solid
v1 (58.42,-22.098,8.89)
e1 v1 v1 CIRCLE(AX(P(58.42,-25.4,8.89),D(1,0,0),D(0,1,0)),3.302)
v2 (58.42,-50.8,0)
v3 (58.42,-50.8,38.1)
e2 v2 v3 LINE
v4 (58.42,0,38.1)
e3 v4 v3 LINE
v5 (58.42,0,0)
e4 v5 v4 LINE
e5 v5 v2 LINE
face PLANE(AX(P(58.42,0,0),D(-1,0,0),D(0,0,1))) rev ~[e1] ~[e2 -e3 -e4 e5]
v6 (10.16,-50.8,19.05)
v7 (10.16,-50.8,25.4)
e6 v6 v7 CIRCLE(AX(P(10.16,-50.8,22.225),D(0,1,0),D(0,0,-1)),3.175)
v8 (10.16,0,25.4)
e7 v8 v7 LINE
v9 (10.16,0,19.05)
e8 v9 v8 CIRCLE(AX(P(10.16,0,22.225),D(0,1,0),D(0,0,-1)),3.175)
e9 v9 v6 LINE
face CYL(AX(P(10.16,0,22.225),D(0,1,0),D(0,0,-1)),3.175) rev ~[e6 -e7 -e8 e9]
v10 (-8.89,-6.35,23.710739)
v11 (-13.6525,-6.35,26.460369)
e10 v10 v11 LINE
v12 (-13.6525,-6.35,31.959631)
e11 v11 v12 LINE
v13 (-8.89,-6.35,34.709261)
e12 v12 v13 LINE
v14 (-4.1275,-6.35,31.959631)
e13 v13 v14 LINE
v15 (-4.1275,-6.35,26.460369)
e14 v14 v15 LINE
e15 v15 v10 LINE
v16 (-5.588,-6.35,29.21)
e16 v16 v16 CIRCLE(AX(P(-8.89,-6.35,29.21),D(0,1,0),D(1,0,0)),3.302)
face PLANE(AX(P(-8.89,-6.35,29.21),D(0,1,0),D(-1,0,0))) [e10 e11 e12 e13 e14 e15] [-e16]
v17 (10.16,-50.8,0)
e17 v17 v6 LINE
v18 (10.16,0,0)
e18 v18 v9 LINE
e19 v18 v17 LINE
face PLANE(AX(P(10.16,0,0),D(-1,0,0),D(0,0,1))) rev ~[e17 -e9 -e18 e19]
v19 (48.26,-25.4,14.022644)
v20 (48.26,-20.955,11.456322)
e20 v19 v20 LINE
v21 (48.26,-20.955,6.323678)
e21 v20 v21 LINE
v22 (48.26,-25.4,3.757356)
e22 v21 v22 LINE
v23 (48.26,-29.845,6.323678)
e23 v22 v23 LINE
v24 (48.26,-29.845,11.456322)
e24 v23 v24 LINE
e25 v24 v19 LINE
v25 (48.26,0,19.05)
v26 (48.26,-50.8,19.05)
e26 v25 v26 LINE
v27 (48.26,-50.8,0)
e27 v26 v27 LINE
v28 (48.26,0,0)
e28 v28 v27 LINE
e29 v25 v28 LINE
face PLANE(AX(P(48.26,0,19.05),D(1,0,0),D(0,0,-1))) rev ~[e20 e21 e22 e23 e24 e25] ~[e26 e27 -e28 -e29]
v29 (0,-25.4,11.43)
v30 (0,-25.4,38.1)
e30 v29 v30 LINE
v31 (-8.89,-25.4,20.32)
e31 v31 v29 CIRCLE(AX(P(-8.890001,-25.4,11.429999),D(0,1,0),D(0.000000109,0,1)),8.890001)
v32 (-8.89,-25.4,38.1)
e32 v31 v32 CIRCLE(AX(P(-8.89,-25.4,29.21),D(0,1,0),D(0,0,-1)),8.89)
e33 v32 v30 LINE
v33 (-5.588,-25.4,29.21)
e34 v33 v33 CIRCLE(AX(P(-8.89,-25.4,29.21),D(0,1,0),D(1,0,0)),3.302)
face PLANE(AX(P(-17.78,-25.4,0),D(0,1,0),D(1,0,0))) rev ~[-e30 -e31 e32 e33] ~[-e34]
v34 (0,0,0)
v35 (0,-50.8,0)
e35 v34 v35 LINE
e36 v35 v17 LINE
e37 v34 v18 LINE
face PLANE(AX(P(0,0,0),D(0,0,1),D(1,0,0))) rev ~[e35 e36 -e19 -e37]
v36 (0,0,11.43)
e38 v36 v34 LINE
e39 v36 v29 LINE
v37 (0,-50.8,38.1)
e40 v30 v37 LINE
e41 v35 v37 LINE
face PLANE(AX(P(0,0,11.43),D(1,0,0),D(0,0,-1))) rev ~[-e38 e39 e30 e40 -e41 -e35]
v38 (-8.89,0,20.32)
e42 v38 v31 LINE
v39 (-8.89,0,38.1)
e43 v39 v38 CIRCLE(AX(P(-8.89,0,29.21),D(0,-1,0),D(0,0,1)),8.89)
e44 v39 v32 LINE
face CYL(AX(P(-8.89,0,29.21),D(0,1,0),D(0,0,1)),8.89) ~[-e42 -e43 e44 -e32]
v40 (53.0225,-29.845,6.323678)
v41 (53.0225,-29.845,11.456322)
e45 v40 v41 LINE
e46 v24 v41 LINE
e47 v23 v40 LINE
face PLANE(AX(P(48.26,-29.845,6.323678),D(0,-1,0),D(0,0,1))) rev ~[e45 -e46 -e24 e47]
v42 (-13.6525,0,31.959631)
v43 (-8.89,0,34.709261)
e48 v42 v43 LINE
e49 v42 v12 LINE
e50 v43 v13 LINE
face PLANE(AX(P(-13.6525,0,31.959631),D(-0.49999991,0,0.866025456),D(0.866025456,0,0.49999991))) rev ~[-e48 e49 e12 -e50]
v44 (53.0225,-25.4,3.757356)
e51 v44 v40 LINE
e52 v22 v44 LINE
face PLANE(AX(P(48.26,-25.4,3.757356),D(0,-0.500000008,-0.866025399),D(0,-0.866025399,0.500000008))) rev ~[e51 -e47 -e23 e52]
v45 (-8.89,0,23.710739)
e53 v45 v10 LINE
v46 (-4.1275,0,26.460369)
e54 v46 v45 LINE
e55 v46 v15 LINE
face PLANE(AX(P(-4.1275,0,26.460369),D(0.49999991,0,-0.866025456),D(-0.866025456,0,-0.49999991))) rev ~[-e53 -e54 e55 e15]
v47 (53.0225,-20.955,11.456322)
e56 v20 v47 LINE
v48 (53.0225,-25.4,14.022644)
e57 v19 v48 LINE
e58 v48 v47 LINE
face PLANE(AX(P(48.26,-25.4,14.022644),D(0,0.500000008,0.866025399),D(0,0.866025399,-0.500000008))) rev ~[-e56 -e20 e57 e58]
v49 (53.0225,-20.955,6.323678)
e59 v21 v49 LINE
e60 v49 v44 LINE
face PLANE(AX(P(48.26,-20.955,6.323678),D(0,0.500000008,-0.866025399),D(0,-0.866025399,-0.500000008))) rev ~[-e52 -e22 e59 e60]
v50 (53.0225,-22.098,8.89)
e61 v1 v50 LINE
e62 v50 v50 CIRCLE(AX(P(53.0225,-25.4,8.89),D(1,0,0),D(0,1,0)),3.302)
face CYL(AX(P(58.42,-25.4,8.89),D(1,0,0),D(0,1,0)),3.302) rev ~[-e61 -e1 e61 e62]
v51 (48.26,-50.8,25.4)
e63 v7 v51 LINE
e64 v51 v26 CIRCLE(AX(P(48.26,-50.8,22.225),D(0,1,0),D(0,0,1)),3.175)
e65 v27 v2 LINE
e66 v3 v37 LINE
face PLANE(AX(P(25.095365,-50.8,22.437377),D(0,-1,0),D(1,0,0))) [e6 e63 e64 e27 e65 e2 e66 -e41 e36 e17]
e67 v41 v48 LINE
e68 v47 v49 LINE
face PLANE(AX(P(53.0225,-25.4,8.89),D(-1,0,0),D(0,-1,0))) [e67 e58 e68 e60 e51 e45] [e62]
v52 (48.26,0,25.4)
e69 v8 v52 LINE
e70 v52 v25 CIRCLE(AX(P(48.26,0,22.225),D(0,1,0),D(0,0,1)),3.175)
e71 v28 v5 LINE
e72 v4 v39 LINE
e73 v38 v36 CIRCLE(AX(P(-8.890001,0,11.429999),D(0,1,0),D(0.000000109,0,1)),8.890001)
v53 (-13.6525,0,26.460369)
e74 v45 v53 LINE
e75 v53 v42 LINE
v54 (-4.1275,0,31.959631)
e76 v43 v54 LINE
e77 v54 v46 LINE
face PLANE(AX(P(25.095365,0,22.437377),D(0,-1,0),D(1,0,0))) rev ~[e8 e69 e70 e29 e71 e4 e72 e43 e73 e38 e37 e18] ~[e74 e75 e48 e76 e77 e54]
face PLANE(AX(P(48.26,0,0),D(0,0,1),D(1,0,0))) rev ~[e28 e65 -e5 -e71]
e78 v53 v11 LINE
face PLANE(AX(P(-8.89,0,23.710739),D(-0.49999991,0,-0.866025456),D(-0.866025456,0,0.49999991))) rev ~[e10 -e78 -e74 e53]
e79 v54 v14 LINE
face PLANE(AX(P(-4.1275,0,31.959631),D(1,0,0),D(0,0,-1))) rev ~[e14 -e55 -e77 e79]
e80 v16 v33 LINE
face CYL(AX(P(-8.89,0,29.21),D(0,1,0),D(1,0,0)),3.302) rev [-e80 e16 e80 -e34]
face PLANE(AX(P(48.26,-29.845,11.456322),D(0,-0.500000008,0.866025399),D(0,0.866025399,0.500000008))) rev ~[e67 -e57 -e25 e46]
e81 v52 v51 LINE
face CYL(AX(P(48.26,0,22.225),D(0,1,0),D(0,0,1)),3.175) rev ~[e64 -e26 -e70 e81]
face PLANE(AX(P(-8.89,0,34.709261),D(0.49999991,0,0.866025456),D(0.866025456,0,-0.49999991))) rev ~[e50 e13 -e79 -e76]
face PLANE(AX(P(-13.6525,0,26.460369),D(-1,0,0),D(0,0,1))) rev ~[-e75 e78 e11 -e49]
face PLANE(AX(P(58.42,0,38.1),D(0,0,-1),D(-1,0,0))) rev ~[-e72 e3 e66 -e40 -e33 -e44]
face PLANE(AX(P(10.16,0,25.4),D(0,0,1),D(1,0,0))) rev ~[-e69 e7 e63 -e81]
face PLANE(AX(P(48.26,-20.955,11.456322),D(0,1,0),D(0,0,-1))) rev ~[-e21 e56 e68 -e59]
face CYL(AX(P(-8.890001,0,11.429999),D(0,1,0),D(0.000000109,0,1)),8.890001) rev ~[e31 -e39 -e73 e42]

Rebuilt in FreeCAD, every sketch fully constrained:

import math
import FreeCAD as App
import Part
import Sketcher
Q = App.Units.Quantity

doc = App.newDocument("Part")
body = doc.addObject("PartDesign::Body", "Body")

# Sketch on XZ plane
sketch1 = body.newObject("Sketcher::SketchObject", "Sketch")
sketch1.AttachmentSupport = (doc.getObject("XZ_Plane"), [""])
sketch1.MapMode = "FlatFace"
sketch1.addGeometry(Part.LineSegment(App.Vector(0, 11.4, 0), App.Vector(0, 0, 0)), False)
sketch1.addGeometry(Part.LineSegment(App.Vector(0, 0, 0), App.Vector(10.2, 0, 0)), False)
sketch1.addGeometry(Part.LineSegment(App.Vector(10.2, 0, 0), App.Vector(10.2, 19.1, 0)), False)
sketch1.addGeometry(Part.ArcOfCircle(Part.Circle(App.Vector(10.2, 22.2, 0), App.Vector(0, 0, 1), 3.2), math.radians(90), math.radians(270)), False)
sketch1.addGeometry(Part.LineSegment(App.Vector(10.2, 25.4, 0), App.Vector(48.3, 25.4, 0)), False)
sketch1.addGeometry(Part.ArcOfCircle(Part.Circle(App.Vector(48.3, 22.2, 0), App.Vector(0, 0, 1), 3.2), math.radians(-90), math.radians(90)), False)
sketch1.addGeometry(Part.LineSegment(App.Vector(48.3, 19.1, 0), App.Vector(48.3, 0, 0)), False)
sketch1.addGeometry(Part.LineSegment(App.Vector(48.3, 0, 0), App.Vector(58.4, 0, 0)), False)
sketch1.addGeometry(Part.LineSegment(App.Vector(58.4, 0, 0), App.Vector(58.4, 38.1, 0)), False)
sketch1.addGeometry(Part.LineSegment(App.Vector(58.4, 38.1, 0), App.Vector(-8.9, 38.1, 0)), False)
sketch1.addGeometry(Part.ArcOfCircle(Part.Circle(App.Vector(-8.9, 29.2, 0), App.Vector(0, 0, 1), 8.9), math.radians(90), math.radians(270)), False)
sketch1.addGeometry(Part.ArcOfCircle(Part.Circle(App.Vector(-8.9, 11.4, 0), App.Vector(0, 0, 1), 8.9), math.radians(0), math.radians(90)), False)
sketch1.addGeometry(Part.Circle(App.Vector(-8.9, 29.2, 0), App.Vector(0, 0, 1), 3.3), False)
sketch1.addConstraint(Sketcher.Constraint("Coincident", 0, 2, 1, 1))
sketch1.addConstraint(Sketcher.Constraint("Coincident", 1, 2, 2, 1))
sketch1.addConstraint(Sketcher.Constraint("Coincident", 2, 2, 3, 2))
sketch1.addConstraint(Sketcher.Constraint("Tangent", 3, 1, 4, 1))
sketch1.addConstraint(Sketcher.Constraint("Tangent", 4, 2, 5, 2))
sketch1.addConstraint(Sketcher.Constraint("Coincident", 5, 1, 6, 1))
sketch1.addConstraint(Sketcher.Constraint("Coincident", 6, 2, 7, 1))
sketch1.addConstraint(Sketcher.Constraint("Coincident", 7, 2, 8, 1))
sketch1.addConstraint(Sketcher.Constraint("Coincident", 8, 2, 9, 1))
sketch1.addConstraint(Sketcher.Constraint("Tangent", 9, 2, 10, 1))
sketch1.addConstraint(Sketcher.Constraint("Tangent", 10, 2, 11, 2))
sketch1.addConstraint(Sketcher.Constraint("Tangent", 11, 1, 0, 1))
sketch1.addConstraint(Sketcher.Constraint("Vertical", 0))
sketch1.addConstraint(Sketcher.Constraint("Horizontal", 1))
sketch1.addConstraint(Sketcher.Constraint("Vertical", 2))
sketch1.addConstraint(Sketcher.Constraint("Horizontal", 4))
sketch1.addConstraint(Sketcher.Constraint("Vertical", 6))
sketch1.addConstraint(Sketcher.Constraint("Horizontal", 7))
sketch1.addConstraint(Sketcher.Constraint("Vertical", 8))
sketch1.addConstraint(Sketcher.Constraint("Horizontal", 9))
sketch1.addConstraint(Sketcher.Constraint("Coincident", 0, 2, -1, 1))
sketch1.addConstraint(Sketcher.Constraint("Coincident", 12, 3, 10, 3))
sketch1.addConstraint(Sketcher.Constraint("Equal", 3, 5))
sketch1.addConstraint(Sketcher.Constraint("Equal", 10, 11))
sketch1.addConstraint(Sketcher.Constraint("PointOnObject", 6, 2, -1))
sketch1.addConstraint(Sketcher.Constraint("Vertical", 10, 3, 11, 3))
sketch1.addConstraint(Sketcher.Constraint("Vertical", 3, 3, 1, 2))
sketch1.addConstraint(Sketcher.Constraint("Vertical", 4, 2, 5, 1))
sketch1.addConstraint(Sketcher.Constraint("Equal", 1, 7))
sketch1.addConstraint(Sketcher.Constraint("Equal", 4, 8))
sketch1.addConstraint(Sketcher.Constraint("Diameter", 12, Q("0.26 in")))
sketch1.addConstraint(Sketcher.Constraint("Radius", 10, Q("0.35 in")))
sketch1.addConstraint(Sketcher.Constraint("DistanceX", 1, 1, 1, 2, Q("0.4 in")))
sketch1.addConstraint(Sketcher.Constraint("DistanceX", 4, 1, 4, 2, Q("1.5 in")))
sketch1.addConstraint(Sketcher.Constraint("DistanceY", -1, 1, 3, 1, Q("1 in")))
sketch1.addConstraint(Sketcher.Constraint("Radius", 3, Q("0.125 in")))
pad1 = body.newObject("PartDesign::Pad", "Pad")
pad1.Profile = sketch1
pad1.Length = Q("2 in")

# Sketch on XY plane
sketch2 = body.newObject("Sketcher::SketchObject", "Sketch001")
sketch2.AttachmentSupport = (doc.getObject("XY_Plane"), [""])
sketch2.MapMode = "FlatFace"
sketch2.addGeometry(Part.LineSegment(App.Vector(0, -51, 0), App.Vector(-18, -51, 0)), False)
sketch2.addGeometry(Part.LineSegment(App.Vector(-18, -51, 0), App.Vector(-18, -25, 0)), False)
sketch2.addGeometry(Part.LineSegment(App.Vector(-18, -25, 0), App.Vector(0, -25, 0)), False)
sketch2.addGeometry(Part.LineSegment(App.Vector(0, -25, 0), App.Vector(0, -51, 0)), False)
sketch2.addConstraint(Sketcher.Constraint("Coincident", 0, 2, 1, 1))
sketch2.addConstraint(Sketcher.Constraint("Coincident", 1, 2, 2, 1))
sketch2.addConstraint(Sketcher.Constraint("Coincident", 2, 2, 3, 1))
sketch2.addConstraint(Sketcher.Constraint("Coincident", 3, 2, 0, 1))
sketch2.addConstraint(Sketcher.Constraint("Horizontal", 0))
sketch2.addConstraint(Sketcher.Constraint("Vertical", 1))
sketch2.addConstraint(Sketcher.Constraint("Horizontal", 2))
sketch2.addConstraint(Sketcher.Constraint("Vertical", 3))
sketch2.addConstraint(Sketcher.Constraint("PointOnObject", 2, 2, -2))
sketch2.addConstraint(Sketcher.Constraint("DistanceY", 1, 1, 1, 2, Q("1 in")))
sketch2.addConstraint(Sketcher.Constraint("DistanceX", 0, 2, 0, 1, Q("0.7 in")))
sketch2.addConstraint(Sketcher.Constraint("DistanceY", 0, 2, -1, 1, Q("2 in")))
pocket1 = body.newObject("PartDesign::Pocket", "Pocket")
pocket1.Profile = sketch2
pocket1.Type = "ThroughAll"
pocket1.Reversed = True

# Sketch on XZ plane
sketch3 = body.newObject("Sketcher::SketchObject", "Sketch002")
sketch3.AttachmentSupport = (doc.getObject("XZ_Plane"), [""])
sketch3.MapMode = "FlatFace"
sketch3.addGeometry(Part.LineSegment(App.Vector(-13.7, 26.5, 0), App.Vector(-13.7, 32, 0)), False)
sketch3.addGeometry(Part.LineSegment(App.Vector(-13.7, 32, 0), App.Vector(-8.9, 34.7, 0)), False)
sketch3.addGeometry(Part.LineSegment(App.Vector(-8.9, 34.7, 0), App.Vector(-4.1, 32, 0)), False)
sketch3.addGeometry(Part.LineSegment(App.Vector(-4.1, 32, 0), App.Vector(-4.1, 26.5, 0)), False)
sketch3.addGeometry(Part.LineSegment(App.Vector(-4.1, 26.5, 0), App.Vector(-8.9, 23.7, 0)), False)
sketch3.addGeometry(Part.LineSegment(App.Vector(-8.9, 23.7, 0), App.Vector(-13.7, 26.5, 0)), False)
sketch3.addGeometry(Part.Circle(App.Vector(-8.9, 29.2, 0), App.Vector(0, 0, 1), 3.3), False)
sketch3.addConstraint(Sketcher.Constraint("Coincident", 0, 2, 1, 1))
sketch3.addConstraint(Sketcher.Constraint("Coincident", 1, 2, 2, 1))
sketch3.addConstraint(Sketcher.Constraint("Coincident", 2, 2, 3, 1))
sketch3.addConstraint(Sketcher.Constraint("Coincident", 3, 2, 4, 1))
sketch3.addConstraint(Sketcher.Constraint("Coincident", 4, 2, 5, 1))
sketch3.addConstraint(Sketcher.Constraint("Coincident", 5, 2, 0, 1))
sketch3.addConstraint(Sketcher.Constraint("Vertical", 0))
sketch3.addConstraint(Sketcher.Constraint("Vertical", 3))
sketch3.addConstraint(Sketcher.Constraint("Parallel", 1, 4))
sketch3.addConstraint(Sketcher.Constraint("Parallel", 2, 5))
sketch3.addConstraint(Sketcher.Constraint("Horizontal", 0, 2, 2, 2))
sketch3.addConstraint(Sketcher.Constraint("Horizontal", 3, 2, 5, 2))
sketch3.addConstraint(Sketcher.Constraint("Vertical", 6, 3, 1, 2))
sketch3.addConstraint(Sketcher.Constraint("Vertical", 1, 2, 4, 2))
sketch3.addConstraint(Sketcher.Constraint("Diameter", 6, Q("0.26 in")))
sketch3.addConstraint(Sketcher.Constraint("Angle", 1, Q("29.999994 deg")))
sketch3.addConstraint(Sketcher.Constraint("DistanceX", 6, 3, -1, 1, Q("0.35 in")))
sketch3.addConstraint(Sketcher.Constraint("DistanceY", -1, 1, 6, 3, Q("1.15 in")))
sketch3.addConstraint(Sketcher.Constraint("DistanceX", 0, 2, 6, 3, Q("0.1875 in")))
sketch3.addConstraint(Sketcher.Constraint("DistanceY", 0, 1, 0, 2, 5.499262))
sketch3.addConstraint(Sketcher.Constraint("DistanceY", -1, 1, 0, 2, 31.959631))
pocket2 = body.newObject("PartDesign::Pocket", "Pocket001")
pocket2.Profile = sketch3
pocket2.Length = Q("0.25 in")
pocket2.Reversed = True

# Sketch on YZ plane
sketch4 = body.newObject("Sketcher::SketchObject", "Sketch003")
sketch4.AttachmentSupport = (doc.getObject("YZ_Plane"), [""])
sketch4.MapMode = "FlatFace"
sketch4.AttachmentOffset = App.Placement(App.Vector(0, 0, 2.3 * 25.4), App.Rotation())
sketch4.addGeometry(Part.Circle(App.Vector(-25.4, 8.9, 0), App.Vector(0, 0, 1), 3.3), False)
sketch4.addConstraint(Sketcher.Constraint("Diameter", 0, Q("0.26 in")))
sketch4.addConstraint(Sketcher.Constraint("DistanceX", 0, 3, -1, 1, Q("1 in")))
sketch4.addConstraint(Sketcher.Constraint("DistanceY", -1, 1, 0, 3, Q("0.35 in")))
pocket3 = body.newObject("PartDesign::Pocket", "Pocket002")
pocket3.Profile = sketch4
pocket3.Length = Q("0.4 in")

# Sketch on YZ plane
sketch5 = body.newObject("Sketcher::SketchObject", "Sketch004")
sketch5.AttachmentSupport = (doc.getObject("YZ_Plane"), [""])
sketch5.MapMode = "FlatFace"
sketch5.AttachmentOffset = App.Placement(App.Vector(0, 0, 1.9 * 25.4), App.Rotation())
sketch5.addGeometry(Part.LineSegment(App.Vector(-30, 11, 0), App.Vector(-25, 14, 0)), False)
sketch5.addGeometry(Part.LineSegment(App.Vector(-25, 14, 0), App.Vector(-21, 11, 0)), False)
sketch5.addGeometry(Part.LineSegment(App.Vector(-21, 11, 0), App.Vector(-21, 6, 0)), False)
sketch5.addGeometry(Part.LineSegment(App.Vector(-21, 6, 0), App.Vector(-25, 4, 0)), False)
sketch5.addGeometry(Part.LineSegment(App.Vector(-25, 4, 0), App.Vector(-30, 6, 0)), False)
sketch5.addGeometry(Part.LineSegment(App.Vector(-30, 6, 0), App.Vector(-30, 11, 0)), False)
sketch5.addConstraint(Sketcher.Constraint("Coincident", 0, 2, 1, 1))
sketch5.addConstraint(Sketcher.Constraint("Coincident", 1, 2, 2, 1))
sketch5.addConstraint(Sketcher.Constraint("Coincident", 2, 2, 3, 1))
sketch5.addConstraint(Sketcher.Constraint("Coincident", 3, 2, 4, 1))
sketch5.addConstraint(Sketcher.Constraint("Coincident", 4, 2, 5, 1))
sketch5.addConstraint(Sketcher.Constraint("Coincident", 5, 2, 0, 1))
sketch5.addConstraint(Sketcher.Constraint("Vertical", 2))
sketch5.addConstraint(Sketcher.Constraint("Vertical", 5))
sketch5.addConstraint(Sketcher.Constraint("Parallel", 0, 3))
sketch5.addConstraint(Sketcher.Constraint("Parallel", 1, 4))
sketch5.addConstraint(Sketcher.Constraint("Horizontal", 2, 2, 4, 2))
sketch5.addConstraint(Sketcher.Constraint("Horizontal", 1, 2, 5, 2))
sketch5.addConstraint(Sketcher.Constraint("Vertical", 0, 2, 3, 2))
sketch5.addConstraint(Sketcher.Constraint("DistanceX", 0, 2, -1, 1, Q("1 in")))
sketch5.addConstraint(Sketcher.Constraint("Angle", 0, Q("30.000001 deg")))
sketch5.addConstraint(Sketcher.Constraint("DistanceX", 4, 2, 2, 2, Q("0.35 in")))
sketch5.addConstraint(Sketcher.Constraint("DistanceY", 2, 2, 2, 1, 5.132644))
sketch5.addConstraint(Sketcher.Constraint("DistanceY", -1, 1, 0, 2, 14.022644))
pocket4 = body.newObject("PartDesign::Pocket", "Pocket003")
pocket4.Profile = sketch5
pocket4.Length = Q("0.1875 in")
pocket4.Reversed = True

doc.recompute()
